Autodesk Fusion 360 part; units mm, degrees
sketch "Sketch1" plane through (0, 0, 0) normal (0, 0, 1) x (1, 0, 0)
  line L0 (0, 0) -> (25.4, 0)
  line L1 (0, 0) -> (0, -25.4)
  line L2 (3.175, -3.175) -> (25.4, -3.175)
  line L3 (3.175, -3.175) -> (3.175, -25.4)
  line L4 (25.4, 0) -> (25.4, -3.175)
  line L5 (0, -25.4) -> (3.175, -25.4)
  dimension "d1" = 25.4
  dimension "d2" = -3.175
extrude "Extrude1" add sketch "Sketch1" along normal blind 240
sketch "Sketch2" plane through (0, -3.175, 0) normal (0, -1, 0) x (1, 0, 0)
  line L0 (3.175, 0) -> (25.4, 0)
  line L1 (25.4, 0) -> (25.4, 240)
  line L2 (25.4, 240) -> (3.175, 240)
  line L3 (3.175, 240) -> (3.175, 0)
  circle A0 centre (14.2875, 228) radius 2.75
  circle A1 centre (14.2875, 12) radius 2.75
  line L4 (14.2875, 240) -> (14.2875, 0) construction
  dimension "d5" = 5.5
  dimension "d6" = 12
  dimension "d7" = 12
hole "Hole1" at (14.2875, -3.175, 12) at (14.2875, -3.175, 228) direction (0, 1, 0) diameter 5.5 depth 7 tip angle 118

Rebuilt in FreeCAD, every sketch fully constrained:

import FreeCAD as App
import Part
import Sketcher
from FreeCAD import Vector
Q = App.Units.Quantity

doc = App.newDocument("Part")
body = doc.addObject("PartDesign::Body", "Body")

sketch1 = body.newObject("Sketcher::SketchObject", "Sketch")
sketch1.AttachmentSupport = (doc.getObject("XY_Plane"), [""])
sketch1.MapMode = "FlatFace"
sketch1.addGeometry([
    Part.LineSegment(Vector(25.4, 0, 0), Vector(0, 0, 0)),
    Part.LineSegment(Vector(0, 0, 0), Vector(0, -25.4, 0)),
    Part.LineSegment(Vector(0, -25.4, 0), Vector(3.2, -25.4, 0)),
    Part.LineSegment(Vector(3.2, -25.4, 0), Vector(3.2, -3.2, 0)),
    Part.LineSegment(Vector(3.2, -3.2, 0), Vector(25.4, -3.2, 0)),
    Part.LineSegment(Vector(25.4, -3.2, 0), Vector(25.4, 0, 0)),
], False)
sketch1.addConstraint([
    Sketcher.Constraint("Coincident", 0, 2, 1, 1),
    Sketcher.Constraint("Coincident", 1, 2, 2, 1),
    Sketcher.Constraint("Coincident", 2, 2, 3, 1),
    Sketcher.Constraint("Coincident", 3, 2, 4, 1),
    Sketcher.Constraint("Coincident", 4, 2, 5, 1),
    Sketcher.Constraint("Coincident", 5, 2, 0, 1),
    Sketcher.Constraint("Horizontal", 0),
    Sketcher.Constraint("Vertical", 1),
    Sketcher.Constraint("Horizontal", 2),
    Sketcher.Constraint("Vertical", 3),
    Sketcher.Constraint("Horizontal", 4),
    Sketcher.Constraint("Vertical", 5),
    Sketcher.Constraint("Coincident", 0, 2, -1, 1),
    Sketcher.Constraint("Equal", 0, 1),
    Sketcher.Constraint("Equal", 4, 3),
    Sketcher.Constraint("DistanceX", 0, 2, 0, 1, Q("1 in")),
    Sketcher.Constraint("DistanceX", 2, 1, 2, 2, Q("0.125 in")),
])
pad1 = body.newObject("PartDesign::Pad", "Pad")
pad1.Profile = sketch1
pad1.Length = 240

sketch2 = body.newObject("Sketcher::SketchObject", "Sketch001")
sketch2.AttachmentSupport = (doc.getObject("XZ_Plane"), [""])
sketch2.MapMode = "FlatFace"
sketch2.AttachmentOffset = App.Placement(Vector(0, 0, 0.125 * 25.4), App.Rotation())
sketch2.addGeometry([
    Part.Circle(Vector(14.3, 12, 0), Vector(0, 0, 1), 2.8),
    Part.Circle(Vector(14.3, 228, 0), Vector(0, 0, 1), 2.8),
], False)
sketch2.addConstraint([
    Sketcher.Constraint("Equal", 0, 1),
    Sketcher.Constraint("Vertical", 0, 3, 1, 3),
    Sketcher.Constraint("Diameter", 0, Q("5.5 mm")),
    Sketcher.Constraint("DistanceX", -1, 1, 0, 3, Q("0.5625 in")),
    Sketcher.Constraint("DistanceY", -1, 1, 0, 3, Q("12 mm")),
    Sketcher.Constraint("DistanceY", -1, 1, 1, 3, Q("228 mm")),
])
doc.recompute()
hole = body.newObject("PartDesign::Hole", "Hole")
hole.Profile = sketch2
hole.ThreadType = "None"
hole.Diameter = 5.5
hole.DepthType = "Dimension"
hole.Depth = Q("0.2755906 in")
hole.DrillPoint = "Angled"
hole.DrillPointAngle = 118

doc.recompute()
